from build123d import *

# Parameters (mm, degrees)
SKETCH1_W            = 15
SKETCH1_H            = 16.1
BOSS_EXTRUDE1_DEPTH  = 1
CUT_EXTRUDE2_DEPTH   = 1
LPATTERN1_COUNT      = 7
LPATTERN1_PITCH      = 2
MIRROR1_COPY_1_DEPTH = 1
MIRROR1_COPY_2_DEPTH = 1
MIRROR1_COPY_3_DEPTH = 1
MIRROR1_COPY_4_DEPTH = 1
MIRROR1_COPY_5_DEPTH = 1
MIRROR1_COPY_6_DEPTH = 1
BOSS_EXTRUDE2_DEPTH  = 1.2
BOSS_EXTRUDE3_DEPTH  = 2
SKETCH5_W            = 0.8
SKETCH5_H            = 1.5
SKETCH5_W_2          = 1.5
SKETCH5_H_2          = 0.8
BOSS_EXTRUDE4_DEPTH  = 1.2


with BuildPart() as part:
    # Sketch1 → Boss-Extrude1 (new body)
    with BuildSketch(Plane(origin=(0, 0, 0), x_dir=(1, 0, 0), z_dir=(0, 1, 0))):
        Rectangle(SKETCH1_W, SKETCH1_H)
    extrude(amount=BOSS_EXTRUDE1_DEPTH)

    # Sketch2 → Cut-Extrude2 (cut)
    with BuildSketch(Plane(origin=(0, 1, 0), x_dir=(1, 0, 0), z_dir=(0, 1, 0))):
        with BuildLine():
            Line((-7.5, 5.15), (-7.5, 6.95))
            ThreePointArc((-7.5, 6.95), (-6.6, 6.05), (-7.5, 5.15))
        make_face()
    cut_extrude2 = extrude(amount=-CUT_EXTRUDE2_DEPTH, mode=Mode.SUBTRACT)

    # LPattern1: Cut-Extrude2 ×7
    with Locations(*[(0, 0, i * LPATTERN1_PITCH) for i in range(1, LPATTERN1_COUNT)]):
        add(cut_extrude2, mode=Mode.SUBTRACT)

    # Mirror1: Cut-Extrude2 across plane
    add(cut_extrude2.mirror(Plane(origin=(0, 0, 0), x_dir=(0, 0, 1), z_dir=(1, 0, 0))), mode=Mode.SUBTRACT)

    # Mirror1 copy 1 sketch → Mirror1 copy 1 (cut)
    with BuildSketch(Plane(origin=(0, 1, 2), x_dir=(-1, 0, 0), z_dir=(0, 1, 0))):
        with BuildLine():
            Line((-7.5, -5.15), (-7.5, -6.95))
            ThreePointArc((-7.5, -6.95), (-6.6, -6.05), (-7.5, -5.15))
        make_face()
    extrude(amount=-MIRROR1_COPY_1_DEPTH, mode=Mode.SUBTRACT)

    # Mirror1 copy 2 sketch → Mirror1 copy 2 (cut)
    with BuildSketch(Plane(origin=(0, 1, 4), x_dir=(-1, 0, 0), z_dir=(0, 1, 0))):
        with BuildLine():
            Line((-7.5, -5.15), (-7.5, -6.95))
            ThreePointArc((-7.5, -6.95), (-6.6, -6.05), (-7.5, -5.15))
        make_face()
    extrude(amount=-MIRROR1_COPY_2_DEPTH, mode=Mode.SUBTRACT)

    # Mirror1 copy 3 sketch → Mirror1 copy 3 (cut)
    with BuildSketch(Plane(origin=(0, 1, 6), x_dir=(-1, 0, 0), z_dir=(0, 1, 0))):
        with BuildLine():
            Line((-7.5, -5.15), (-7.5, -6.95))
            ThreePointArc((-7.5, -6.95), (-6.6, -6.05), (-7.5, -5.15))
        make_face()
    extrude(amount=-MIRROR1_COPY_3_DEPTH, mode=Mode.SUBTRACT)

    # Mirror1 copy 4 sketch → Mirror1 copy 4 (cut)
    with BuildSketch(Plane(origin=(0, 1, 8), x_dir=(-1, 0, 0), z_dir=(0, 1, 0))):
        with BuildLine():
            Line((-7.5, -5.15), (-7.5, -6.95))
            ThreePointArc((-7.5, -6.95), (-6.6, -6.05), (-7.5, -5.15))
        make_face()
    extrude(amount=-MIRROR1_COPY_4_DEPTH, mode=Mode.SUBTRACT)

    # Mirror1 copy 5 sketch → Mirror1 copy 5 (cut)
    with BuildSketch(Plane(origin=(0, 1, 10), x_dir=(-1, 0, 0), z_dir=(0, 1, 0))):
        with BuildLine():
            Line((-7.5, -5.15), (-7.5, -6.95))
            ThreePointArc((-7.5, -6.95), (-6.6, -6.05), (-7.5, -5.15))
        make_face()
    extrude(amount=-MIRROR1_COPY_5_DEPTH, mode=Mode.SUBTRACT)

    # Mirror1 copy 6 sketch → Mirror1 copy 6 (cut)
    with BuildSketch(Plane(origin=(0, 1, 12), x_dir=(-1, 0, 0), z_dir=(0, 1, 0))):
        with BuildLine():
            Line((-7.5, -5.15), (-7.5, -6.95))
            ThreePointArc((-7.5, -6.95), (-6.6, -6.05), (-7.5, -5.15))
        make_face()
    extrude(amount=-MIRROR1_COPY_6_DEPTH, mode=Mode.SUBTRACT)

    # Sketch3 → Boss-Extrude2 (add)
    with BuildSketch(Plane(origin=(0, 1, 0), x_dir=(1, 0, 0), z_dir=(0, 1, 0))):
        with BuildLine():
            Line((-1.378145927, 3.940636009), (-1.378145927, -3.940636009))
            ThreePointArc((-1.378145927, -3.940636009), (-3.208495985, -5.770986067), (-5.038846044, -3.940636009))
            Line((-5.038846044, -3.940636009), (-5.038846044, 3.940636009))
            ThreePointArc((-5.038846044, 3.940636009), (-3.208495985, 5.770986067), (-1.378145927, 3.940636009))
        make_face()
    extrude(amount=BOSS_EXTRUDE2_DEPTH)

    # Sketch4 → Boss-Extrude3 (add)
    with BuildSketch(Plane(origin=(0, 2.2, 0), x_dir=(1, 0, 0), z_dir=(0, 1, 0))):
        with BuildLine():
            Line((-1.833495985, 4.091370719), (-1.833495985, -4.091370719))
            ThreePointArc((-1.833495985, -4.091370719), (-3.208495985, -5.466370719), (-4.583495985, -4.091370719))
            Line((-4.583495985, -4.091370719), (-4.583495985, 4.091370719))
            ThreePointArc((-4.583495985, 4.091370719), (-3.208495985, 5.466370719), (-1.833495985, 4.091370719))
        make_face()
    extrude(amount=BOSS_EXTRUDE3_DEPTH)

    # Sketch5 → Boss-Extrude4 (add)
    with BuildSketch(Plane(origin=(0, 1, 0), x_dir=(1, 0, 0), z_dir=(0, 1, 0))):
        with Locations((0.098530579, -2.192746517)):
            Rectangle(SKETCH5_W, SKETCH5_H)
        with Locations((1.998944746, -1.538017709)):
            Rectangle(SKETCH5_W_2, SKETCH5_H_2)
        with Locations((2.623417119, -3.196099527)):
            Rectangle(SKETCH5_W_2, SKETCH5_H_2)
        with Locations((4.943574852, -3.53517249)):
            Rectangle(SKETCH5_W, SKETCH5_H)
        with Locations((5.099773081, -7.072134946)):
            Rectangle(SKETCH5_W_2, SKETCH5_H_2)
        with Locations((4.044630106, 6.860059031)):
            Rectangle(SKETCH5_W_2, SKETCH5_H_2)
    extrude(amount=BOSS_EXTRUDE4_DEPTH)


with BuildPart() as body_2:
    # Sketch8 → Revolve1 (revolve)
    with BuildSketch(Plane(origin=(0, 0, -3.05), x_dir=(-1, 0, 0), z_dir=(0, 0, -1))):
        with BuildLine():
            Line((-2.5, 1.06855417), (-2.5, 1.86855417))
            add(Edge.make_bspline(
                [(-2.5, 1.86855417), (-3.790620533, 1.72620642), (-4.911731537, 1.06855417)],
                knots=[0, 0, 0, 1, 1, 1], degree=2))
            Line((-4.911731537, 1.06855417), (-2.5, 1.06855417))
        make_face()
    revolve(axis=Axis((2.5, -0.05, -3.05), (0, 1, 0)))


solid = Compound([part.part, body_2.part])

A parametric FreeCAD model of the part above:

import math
import FreeCAD as App
import Part
import Sketcher

doc = App.newDocument("Part")
body = doc.addObject("PartDesign::Body", "Body")

# Sketch on XZ plane
sketch1 = body.newObject("Sketcher::SketchObject", "Sketch")
sketch1.AttachmentSupport = (doc.getObject("XZ_Plane"), [""])
sketch1.MapMode = "FlatFace"
sketch1.addGeometry(Part.LineSegment(App.Vector(-8, -8, 0), App.Vector(-8, 8, 0)), False)
sketch1.addGeometry(Part.LineSegment(App.Vector(-8, 8, 0), App.Vector(8, 8, 0)), False)
sketch1.addGeometry(Part.LineSegment(App.Vector(8, 8, 0), App.Vector(8, -8, 0)), False)
sketch1.addGeometry(Part.LineSegment(App.Vector(8, -8, 0), App.Vector(-8, -8, 0)), False)
sketch1.addConstraint(Sketcher.Constraint("Coincident", 0, 2, 1, 1))
sketch1.addConstraint(Sketcher.Constraint("Coincident", 1, 2, 2, 1))
sketch1.addConstraint(Sketcher.Constraint("Coincident", 2, 2, 3, 1))
sketch1.addConstraint(Sketcher.Constraint("Coincident", 3, 2, 0, 1))
sketch1.addConstraint(Sketcher.Constraint("Vertical", 0))
sketch1.addConstraint(Sketcher.Constraint("Horizontal", 1))
sketch1.addConstraint(Sketcher.Constraint("Vertical", 2))
sketch1.addConstraint(Sketcher.Constraint("Horizontal", 3))
sketch1.addConstraint(Sketcher.Constraint("Symmetric", 0, 2, 2, 2, -1, 1))
sketch1.addConstraint(Sketcher.Constraint("DistanceX", 1, 1, 1, 2, 15.0))
sketch1.addConstraint(Sketcher.Constraint("DistanceY", 0, 1, 0, 2, 16.1))
pad1 = body.newObject("PartDesign::Pad", "Pad")
pad1.Profile = sketch1
pad1.Length = 1
pad1.Reversed = True

# Sketch on XZ plane
sketch2 = body.newObject("Sketcher::SketchObject", "Sketch001")
sketch2.AttachmentSupport = (doc.getObject("XZ_Plane"), [""])
sketch2.MapMode = "FlatFace"
sketch2.AttachmentOffset = App.Placement(App.Vector(0, 0, -1), App.Rotation())
sketch2.addGeometry(Part.LineSegment(App.Vector(-7.5, -7, 0), App.Vector(-7.5, -5.2, 0)), False)
sketch2.addGeometry(Part.ArcOfCircle(Part.Circle(App.Vector(-7.5, -6, 0), App.Vector(0, 0, 1), 0.9), math.radians(-90), math.radians(90)), False)
sketch2.addConstraint(Sketcher.Constraint("Coincident", 0, 1, 1, 1))
sketch2.addConstraint(Sketcher.Constraint("Coincident", 1, 2, 0, 2))
sketch2.addConstraint(Sketcher.Constraint("Vertical", 0))
sketch2.addConstraint(Sketcher.Constraint("Vertical", 1, 3, 0, 1))
sketch2.addConstraint(Sketcher.Constraint("Radius", 1, 0.9))
sketch2.addConstraint(Sketcher.Constraint("DistanceX", 1, 3, -1, 1, 7.5))
sketch2.addConstraint(Sketcher.Constraint("DistanceY", 1, 3, -1, 1, 6.05))
pocket1 = body.newObject("PartDesign::Pocket", "Pocket")
pocket1.Profile = sketch2
pocket1.Length = 1
pocket1.Reversed = True
doc.recompute()

linearpattern = body.newObject("PartDesign::LinearPattern", "LinearPattern")
linearpattern.Originals = [pocket1]
linearpattern.Direction = (doc.getObject("Z_Axis"), [""])
linearpattern.Mode = "offset"
linearpattern.Offset = 2
linearpattern.Occurrences = 7
body.Tip = linearpattern
doc.recompute()

mirrored = body.newObject("PartDesign::Mirrored", "Mirrored")
mirrored.Originals = [pocket1]
mirrored.MirrorPlane = (doc.getObject("YZ_Plane"), [""])
body.Tip = mirrored

# Sketch on XZ plane
sketch3 = body.newObject("Sketcher::SketchObject", "Sketch002")
sketch3.AttachmentSupport = (doc.getObject("XZ_Plane"), [""])
sketch3.MapMode = "FlatFace"
sketch3.AttachmentOffset = App.Placement(App.Vector(0, 0, -1), App.Rotation())
sketch3.addGeometry(Part.LineSegment(App.Vector(7.5, -3.1, 0), App.Vector(7.5, -5, 0)), False)
sketch3.addGeometry(Part.ArcOfCircle(Part.Circle(App.Vector(7.5, -4, 0), App.Vector(0, 0, 1), 0.9), math.radians(90), math.radians(270)), False)
sketch3.addConstraint(Sketcher.Constraint("Coincident", 0, 1, 1, 1))
sketch3.addConstraint(Sketcher.Constraint("Coincident", 1, 2, 0, 2))
sketch3.addConstraint(Sketcher.Constraint("Vertical", 0))
sketch3.addConstraint(Sketcher.Constraint("Vertical", 1, 3, 0, 1))
sketch3.addConstraint(Sketcher.Constraint("Radius", 1, 0.9))
sketch3.addConstraint(Sketcher.Constraint("DistanceX", -1, 1, 1, 3, 7.5))
sketch3.addConstraint(Sketcher.Constraint("DistanceY", 1, 3, -1, 1, 4.05))
pocket2 = body.newObject("PartDesign::Pocket", "Pocket001")
pocket2.Profile = sketch3
pocket2.Length = 1
pocket2.Reversed = True

# Sketch on XZ plane
sketch4 = body.newObject("Sketcher::SketchObject", "Sketch003")
sketch4.AttachmentSupport = (doc.getObject("XZ_Plane"), [""])
sketch4.MapMode = "FlatFace"
sketch4.AttachmentOffset = App.Placement(App.Vector(0, 0, -1), App.Rotation())
sketch4.addGeometry(Part.LineSegment(App.Vector(7.5, -1.1, 0), App.Vector(7.5, -3, 0)), False)
sketch4.addGeometry(Part.ArcOfCircle(Part.Circle(App.Vector(7.5, -2, 0), App.Vector(0, 0, 1), 0.9), math.radians(90), math.radians(270)), False)
sketch4.addConstraint(Sketcher.Constraint("Coincident", 0, 1, 1, 1))
sketch4.addConstraint(Sketcher.Constraint("Coincident", 1, 2, 0, 2))
sketch4.addConstraint(Sketcher.Constraint("Vertical", 0))
sketch4.addConstraint(Sketcher.Constraint("Vertical", 1, 3, 0, 1))
sketch4.addConstraint(Sketcher.Constraint("Radius", 1, 0.9))
sketch4.addConstraint(Sketcher.Constraint("DistanceX", -1, 1, 1, 3, 7.5))
sketch4.addConstraint(Sketcher.Constraint("DistanceY", 1, 3, -1, 1, 2.05))
pocket3 = body.newObject("PartDesign::Pocket", "Pocket002")
pocket3.Profile = sketch4
pocket3.Length = 1
pocket3.Reversed = True

# Sketch on XZ plane
sketch5 = body.newObject("Sketcher::SketchObject", "Sketch004")
sketch5.AttachmentSupport = (doc.getObject("XZ_Plane"), [""])
sketch5.MapMode = "FlatFace"
sketch5.AttachmentOffset = App.Placement(App.Vector(0, 0, -1), App.Rotation())
sketch5.addGeometry(Part.LineSegment(App.Vector(7.5, 0.8, 0), App.Vector(7.5, -0.9, 0)), False)
sketch5.addGeometry(Part.ArcOfCircle(Part.Circle(App.Vector(7.5, -0.1, 0), App.Vector(0, 0, 1), 0.9), math.radians(90), math.radians(270)), False)
sketch5.addConstraint(Sketcher.Constraint("Coincident", 0, 1, 1, 1))
sketch5.addConstraint(Sketcher.Constraint("Coincident", 1, 2, 0, 2))
sketch5.addConstraint(Sketcher.Constraint("Vertical", 0))
sketch5.addConstraint(Sketcher.Constraint("Vertical", 1, 3, 0, 1))
sketch5.addConstraint(Sketcher.Constraint("Radius", 1, 0.9))
sketch5.addConstraint(Sketcher.Constraint("DistanceX", -1, 1, 1, 3, 7.5))
sketch5.addConstraint(Sketcher.Constraint("DistanceY", 1, 3, -1, 1, 0.05))
pocket4 = body.newObject("PartDesign::Pocket", "Pocket003")
pocket4.Profile = sketch5
pocket4.Length = 1
pocket4.Reversed = True

# Sketch on XZ plane
sketch6 = body.newObject("Sketcher::SketchObject", "Sketch005")
sketch6.AttachmentSupport = (doc.getObject("XZ_Plane"), [""])
sketch6.MapMode = "FlatFace"
sketch6.AttachmentOffset = App.Placement(App.Vector(0, 0, -1), App.Rotation())
sketch6.addGeometry(Part.LineSegment(App.Vector(7.5, 2.9, 0), App.Vector(7.5, 1.1, 0)), False)
sketch6.addGeometry(Part.ArcOfCircle(Part.Circle(App.Vector(7.5, 1.9, 0), App.Vector(0, 0, 1), 0.9), math.radians(90), math.radians(270)), False)
sketch6.addConstraint(Sketcher.Constraint("Coincident", 0, 1, 1, 1))
sketch6.addConstraint(Sketcher.Constraint("Coincident", 1, 2, 0, 2))
sketch6.addConstraint(Sketcher.Constraint("Vertical", 0))
sketch6.addConstraint(Sketcher.Constraint("Vertical", 1, 3, 0, 1))
sketch6.addConstraint(Sketcher.Constraint("Radius", 1, 0.9))
sketch6.addConstraint(Sketcher.Constraint("DistanceX", -1, 1, 1, 3, 7.5))
sketch6.addConstraint(Sketcher.Constraint("DistanceY", -1, 1, 1, 3, 1.95))
pocket5 = body.newObject("PartDesign::Pocket", "Pocket004")
pocket5.Profile = sketch6
pocket5.Length = 1
pocket5.Reversed = True

# Sketch on XZ plane
sketch7 = body.newObject("Sketcher::SketchObject", "Sketch006")
sketch7.AttachmentSupport = (doc.getObject("XZ_Plane"), [""])
sketch7.MapMode = "FlatFace"
sketch7.AttachmentOffset = App.Placement(App.Vector(0, 0, -1), App.Rotation())
sketch7.addGeometry(Part.LineSegment(App.Vector(7.5, 4.8, 0), App.Vector(7.5, 3, 0)), False)
sketch7.addGeometry(Part.ArcOfCircle(Part.Circle(App.Vector(7.5, 4, 0), App.Vector(0, 0, 1), 0.9), math.radians(90), math.radians(270)), False)
sketch7.addConstraint(Sketcher.Constraint("Coincident", 0, 1, 1, 1))
sketch7.addConstraint(Sketcher.Constraint("Coincident", 1, 2, 0, 2))
sketch7.addConstraint(Sketcher.Constraint("Vertical", 0))
sketch7.addConstraint(Sketcher.Constraint("Vertical", 1, 3, 0, 1))
sketch7.addConstraint(Sketcher.Constraint("Radius", 1, 0.9))
sketch7.addConstraint(Sketcher.Constraint("DistanceX", -1, 1, 1, 3, 7.5))
sketch7.addConstraint(Sketcher.Constraint("DistanceY", -1, 1, 1, 3, 3.95))
pocket6 = body.newObject("PartDesign::Pocket", "Pocket005")
pocket6.Profile = sketch7
pocket6.Length = 1
pocket6.Reversed = True

# Sketch on XZ plane
sketch8 = body.newObject("Sketcher::SketchObject", "Sketch007")
sketch8.AttachmentSupport = (doc.getObject("XZ_Plane"), [""])
sketch8.MapMode = "FlatFace"
sketch8.AttachmentOffset = App.Placement(App.Vector(0, 0, -1), App.Rotation())
sketch8.addGeometry(Part.LineSegment(App.Vector(7.5, 6.8, 0), App.Vector(7.5, 5, 0)), False)
sketch8.addGeometry(Part.ArcOfCircle(Part.Circle(App.Vector(7.5, 6, 0), App.Vector(0, 0, 1), 0.9), math.radians(90), math.radians(270)), False)
sketch8.addConstraint(Sketcher.Constraint("Coincident", 0, 1, 1, 1))
sketch8.addConstraint(Sketcher.Constraint("Coincident", 1, 2, 0, 2))
sketch8.addConstraint(Sketcher.Constraint("Vertical", 0))
sketch8.addConstraint(Sketcher.Constraint("Vertical", 1, 3, 0, 1))
sketch8.addConstraint(Sketcher.Constraint("Radius", 1, 0.9))
sketch8.addConstraint(Sketcher.Constraint("DistanceX", -1, 1, 1, 3, 7.5))
sketch8.addConstraint(Sketcher.Constraint("DistanceY", -1, 1, 1, 3, 5.95))
pocket7 = body.newObject("PartDesign::Pocket", "Pocket006")
pocket7.Profile = sketch8
pocket7.Length = 1
pocket7.Reversed = True

# Sketch on XZ plane
sketch9 = body.newObject("Sketcher::SketchObject", "Sketch008")
sketch9.AttachmentSupport = (doc.getObject("XZ_Plane"), [""])
sketch9.MapMode = "FlatFace"
sketch9.AttachmentOffset = App.Placement(App.Vector(0, 0, -1), App.Rotation())
sketch9.addGeometry(Part.LineSegment(App.Vector(-1.4, 3.9, 0), App.Vector(-1.4, -3.9, 0)), False)
sketch9.addGeometry(Part.ArcOfCircle(Part.Circle(App.Vector(-3.2, -3.9, 0), App.Vector(0, 0, 1), 1.8), math.radians(180), math.radians(360)), False)
sketch9.addGeometry(Part.LineSegment(App.Vector(-5, -3.9, 0), App.Vector(-5, 3.9, 0)), False)
sketch9.addGeometry(Part.ArcOfCircle(Part.Circle(App.Vector(-3.2, 3.9, 0), App.Vector(0, 0, 1), 1.8), math.radians(0), math.radians(180)), False)
sketch9.addConstraint(Sketcher.Constraint("Tangent", 0, 2, 1, 2))
sketch9.addConstraint(Sketcher.Constraint("Tangent", 1, 1, 2, 1))
sketch9.addConstraint(Sketcher.Constraint("Tangent", 2, 2, 3, 2))
sketch9.addConstraint(Sketcher.Constraint("Tangent", 3, 1, 0, 1))
sketch9.addConstraint(Sketcher.Constraint("Vertical", 0))
sketch9.addConstraint(Sketcher.Constraint("Vertical", 2))
sketch9.addConstraint(Sketcher.Constraint("Radius", 1, 1.83035))
sketch9.addConstraint(Sketcher.Constraint("DistanceY", 0, 2, 0, 1, 7.881272))
sketch9.addConstraint(Sketcher.Constraint("DistanceX", 1, 3, -1, 1, 3.208496))
sketch9.addConstraint(Sketcher.Constraint("DistanceY", 1, 3, -1, 1, 3.940636))
pad2 = body.newObject("PartDesign::Pad", "Pad001")
pad2.Profile = sketch9
pad2.Length = 1.2
pad2.Reversed = True

# Sketch on XZ plane
sketch10 = body.newObject("Sketcher::SketchObject", "Sketch009")
sketch10.AttachmentSupport = (doc.getObject("XZ_Plane"), [""])
sketch10.MapMode = "FlatFace"
sketch10.AttachmentOffset = App.Placement(App.Vector(0, 0, -2.2), App.Rotation())
sketch10.addGeometry(Part.LineSegment(App.Vector(-1.8, 4.1, 0), App.Vector(-1.8, -4.1, 0)), False)
sketch10.addGeometry(Part.ArcOfCircle(Part.Circle(App.Vector(-3.2, -4.1, 0), App.Vector(0, 0, 1), 1.4), math.radians(180), math.radians(360)), False)
sketch10.addGeometry(Part.LineSegment(App.Vector(-4.6, -4.1, 0), App.Vector(-4.6, 4.1, 0)), False)
sketch10.addGeometry(Part.ArcOfCircle(Part.Circle(App.Vector(-3.2, 4.1, 0), App.Vector(0, 0, 1), 1.4), math.radians(0), math.radians(180)), False)
sketch10.addConstraint(Sketcher.Constraint("Tangent", 0, 2, 1, 2))
sketch10.addConstraint(Sketcher.Constraint("Tangent", 1, 1, 2, 1))
sketch10.addConstraint(Sketcher.Constraint("Tangent", 2, 2, 3, 2))
sketch10.addConstraint(Sketcher.Constraint("Tangent", 3, 1, 0, 1))
sketch10.addConstraint(Sketcher.Constraint("Vertical", 0))
sketch10.addConstraint(Sketcher.Constraint("Vertical", 2))
sketch10.addConstraint(Sketcher.Constraint("Radius", 1, 1.375))
sketch10.addConstraint(Sketcher.Constraint("DistanceY", 0, 2, 0, 1, 8.182741))
sketch10.addConstraint(Sketcher.Constraint("DistanceY", 1, 3, -1, 1, 4.091371))
sketch10.addConstraint(Sketcher.Constraint("DistanceX", 1, 3, -1, 1, 3.208496))
pad3 = body.newObject("PartDesign::Pad", "Pad002")
pad3.Profile = sketch10
pad3.Length = 2
pad3.Reversed = True

# Sketch on XZ plane
sketch11 = body.newObject("Sketcher::SketchObject", "Sketch010")
sketch11.AttachmentSupport = (doc.getObject("XZ_Plane"), [""])
sketch11.MapMode = "FlatFace"
sketch11.AttachmentOffset = App.Placement(App.Vector(0, 0, -1), App.Rotation())
sketch11.addGeometry(Part.LineSegment(App.Vector(-0.3, 1.4, 0), App.Vector(-0.3, 2.9, 0)), False)
sketch11.addGeometry(Part.LineSegment(App.Vector(-0.3, 2.9, 0), App.Vector(0.5, 2.9, 0)), False)
sketch11.addGeometry(Part.LineSegment(App.Vector(0.5, 2.9, 0), App.Vector(0.5, 1.4, 0)), False)
sketch11.addGeometry(Part.LineSegment(App.Vector(0.5, 1.4, 0), App.Vector(-0.3, 1.4, 0)), False)
sketch11.addGeometry(Part.LineSegment(App.Vector(1.2, 1.1, 0), App.Vector(1.2, 1.9, 0)), False)
sketch11.addGeometry(Part.LineSegment(App.Vector(1.2, 1.9, 0), App.Vector(2.7, 1.9, 0)), False)
sketch11.addGeometry(Part.LineSegment(App.Vector(2.7, 1.9, 0), App.Vector(2.7, 1.1, 0)), False)
sketch11.addGeometry(Part.LineSegment(App.Vector(2.7, 1.1, 0), App.Vector(1.2, 1.1, 0)), False)
sketch11.addGeometry(Part.LineSegment(App.Vector(1.9, 2.8, 0), App.Vector(1.9, 3.6, 0)), False)
sketch11.addGeometry(Part.LineSegment(App.Vector(1.9, 3.6, 0), App.Vector(3.4, 3.6, 0)), False)
sketch11.addGeometry(Part.LineSegment(App.Vector(3.4, 3.6, 0), App.Vector(3.4, 2.8, 0)), False)
sketch11.addGeometry(Part.LineSegment(App.Vector(3.4, 2.8, 0), App.Vector(1.9, 2.8, 0)), False)
sketch11.addGeometry(Part.LineSegment(App.Vector(4.5, 2.8, 0), App.Vector(4.5, 4.3, 0)), False)
sketch11.addGeometry(Part.LineSegment(App.Vector(4.5, 4.3, 0), App.Vector(5.3, 4.3, 0)), False)
sketch11.addGeometry(Part.LineSegment(App.Vector(5.3, 4.3, 0), App.Vector(5.3, 2.8, 0)), False)
sketch11.addGeometry(Part.LineSegment(App.Vector(5.3, 2.8, 0), App.Vector(4.5, 2.8, 0)), False)
sketch11.addGeometry(Part.LineSegment(App.Vector(4.3, 6.7, 0), App.Vector(4.3, 7.5, 0)), False)
sketch11.addGeometry(Part.LineSegment(App.Vector(4.3, 7.5, 0), App.Vector(5.8, 7.5, 0)), False)
sketch11.addGeometry(Part.LineSegment(App.Vector(5.8, 7.5, 0), App.Vector(5.8, 6.7, 0)), False)
sketch11.addGeometry(Part.LineSegment(App.Vector(5.8, 6.7, 0), App.Vector(4.3, 6.7, 0)), False)
sketch11.addGeometry(Part.LineSegment(App.Vector(3.3, -7.3, 0), App.Vector(3.3, -6.5, 0)), False)
sketch11.addGeometry(Part.LineSegment(App.Vector(3.3, -6.5, 0), App.Vector(4.8, -6.5, 0)), False)
sketch11.addGeometry(Part.LineSegment(App.Vector(4.8, -6.5, 0), App.Vector(4.8, -7.3, 0)), False)
sketch11.addGeometry(Part.LineSegment(App.Vector(4.8, -7.3, 0), App.Vector(3.3, -7.3, 0)), False)
sketch11.addConstraint(Sketcher.Constraint("Coincident", 0, 2, 1, 1))
sketch11.addConstraint(Sketcher.Constraint("Coincident", 1, 2, 2, 1))
sketch11.addConstraint(Sketcher.Constraint("Coincident", 2, 2, 3, 1))
sketch11.addConstraint(Sketcher.Constraint("Coincident", 3, 2, 0, 1))
sketch11.addConstraint(Sketcher.Constraint("Coincident", 4, 2, 5, 1))
sketch11.addConstraint(Sketcher.Constraint("Coincident", 5, 2, 6, 1))
sketch11.addConstraint(Sketcher.Constraint("Coincident", 6, 2, 7, 1))
sketch11.addConstraint(Sketcher.Constraint("Coincident", 7, 2, 4, 1))
sketch11.addConstraint(Sketcher.Constraint("Coincident", 8, 2, 9, 1))
sketch11.addConstraint(Sketcher.Constraint("Coincident", 9, 2, 10, 1))
sketch11.addConstraint(Sketcher.Constraint("Coincident", 10, 2, 11, 1))
sketch11.addConstraint(Sketcher.Constraint("Coincident", 11, 2, 8, 1))
sketch11.addConstraint(Sketcher.Constraint("Coincident", 12, 2, 13, 1))
sketch11.addConstraint(Sketcher.Constraint("Coincident", 13, 2, 14, 1))
sketch11.addConstraint(Sketcher.Constraint("Coincident", 14, 2, 15, 1))
sketch11.addConstraint(Sketcher.Constraint("Coincident", 15, 2, 12, 1))
sketch11.addConstraint(Sketcher.Constraint("Coincident", 16, 2, 17, 1))
sketch11.addConstraint(Sketcher.Constraint("Coincident", 17, 2, 18, 1))
sketch11.addConstraint(Sketcher.Constraint("Coincident", 18, 2, 19, 1))
sketch11.addConstraint(Sketcher.Constraint("Coincident", 19, 2, 16, 1))
sketch11.addConstraint(Sketcher.Constraint("Coincident", 20, 2, 21, 1))
sketch11.addConstraint(Sketcher.Constraint("Coincident", 21, 2, 22, 1))
sketch11.addConstraint(Sketcher.Constraint("Coincident", 22, 2, 23, 1))
sketch11.addConstraint(Sketcher.Constraint("Coincident", 23, 2, 20, 1))
sketch11.addConstraint(Sketcher.Constraint("Vertical", 0))
sketch11.addConstraint(Sketcher.Constraint("Horizontal", 1))
sketch11.addConstraint(Sketcher.Constraint("Vertical", 2))
sketch11.addConstraint(Sketcher.Constraint("Horizontal", 3))
sketch11.addConstraint(Sketcher.Constraint("Vertical", 4))
sketch11.addConstraint(Sketcher.Constraint("Horizontal", 5))
sketch11.addConstraint(Sketcher.Constraint("Vertical", 6))
sketch11.addConstraint(Sketcher.Constraint("Horizontal", 7))
sketch11.addConstraint(Sketcher.Constraint("Vertical", 8))
sketch11.addConstraint(Sketcher.Constraint("Horizontal", 9))
sketch11.addConstraint(Sketcher.Constraint("Vertical", 10))
sketch11.addConstraint(Sketcher.Constraint("Horizontal", 11))
sketch11.addConstraint(Sketcher.Constraint("Vertical", 12))
sketch11.addConstraint(Sketcher.Constraint("Horizontal", 13))
sketch11.addConstraint(Sketcher.Constraint("Vertical", 14))
sketch11.addConstraint(Sketcher.Constraint("Horizontal", 15))
sketch11.addConstraint(Sketcher.Constraint("Vertical", 16))
sketch11.addConstraint(Sketcher.Constraint("Horizontal", 17))
sketch11.addConstraint(Sketcher.Constraint("Vertical", 18))
sketch11.addConstraint(Sketcher.Constraint("Horizontal", 19))
sketch11.addConstraint(Sketcher.Constraint("Vertical", 20))
sketch11.addConstraint(Sketcher.Constraint("Horizontal", 21))
sketch11.addConstraint(Sketcher.Constraint("Vertical", 22))
sketch11.addConstraint(Sketcher.Constraint("Horizontal", 23))
sketch11.addConstraint(Sketcher.Constraint("Equal", 7, 9))
sketch11.addConstraint(Sketcher.Constraint("Equal", 3, 13))
sketch11.addConstraint(Sketcher.Constraint("Equal", 11, 17))
sketch11.addConstraint(Sketcher.Constraint("Equal", 19, 21))
sketch11.addConstraint(Sketcher.Constraint("Equal", 23, 0))
sketch11.addConstraint(Sketcher.Constraint("Equal", 15, 4))
sketch11.addConstraint(Sketcher.Constraint("Equal", 6, 8))
sketch11.addConstraint(Sketcher.Constraint("Equal", 2, 12))
sketch11.addConstraint(Sketcher.Constraint("Equal", 10, 16))
sketch11.addConstraint(Sketcher.Constraint("Equal", 18, 20))
sketch11.addConstraint(Sketcher.Constraint("DistanceX", 1, 1, 1, 2, 0.8))
sketch11.addConstraint(Sketcher.Constraint("DistanceX", 5, 1, 5, 2, 1.5))
sketch11.addConstraint(Sketcher.Constraint("DistanceY", -1, 1, 8, 2, 3.5961))
sketch11.addConstraint(Sketcher.Constraint("DistanceX", 16, 2, 12, 2, 0.193802))
sketch11.addConstraint(Sketcher.Constraint("DistanceX", 2, 2, 20, 2, 2.7961))
sketch11.addConstraint(Sketcher.Constraint("DistanceX", 0, 2, -1, 1, 0.301469))
sketch11.addConstraint(Sketcher.Constraint("DistanceY", 20, 2, -1, 1, 6.460059))
sketch11.addConstraint(Sketcher.Constraint("DistanceY", 2, 2, 4, 2, 0.495271))
sketch11.addConstraint(Sketcher.Constraint("DistanceY", 4, 2, 8, 2, 1.658082))
sketch11.addConstraint(Sketcher.Constraint("DistanceX", 5, 2, 12, 2, 1.79463))
sketch11.addConstraint(Sketcher.Constraint("DistanceX", -1, 1, 4, 2, 1.248945))
sketch11.addConstraint(Sketcher.Constraint("DistanceX", -1, 1, 8, 2, 1.873417))
sketch11.addConstraint(Sketcher.Constraint("DistanceY", -1, 1, 12, 2, 4.285172))
sketch11.addConstraint(Sketcher.Constraint("DistanceY", -1, 1, 16, 2, 7.472135))
pad4 = body.newObject("PartDesign::Pad", "Pad003")
pad4.Profile = sketch11
pad4.Length = 1.2
pad4.Reversed = True
body2 = doc.addObject("PartDesign::Body", "Body001")

# Sketch on XY plane
sketch12 = body2.newObject("Sketcher::SketchObject", "Sketch011")
sketch12.AttachmentSupport = (doc.getObject("XY_Plane001"), [""])
sketch12.MapMode = "FlatFace"
sketch12.AttachmentOffset = App.Placement(App.Vector(0, 0, -3.05), App.Rotation())
sketch12.addGeometry(Part.LineSegment(App.Vector(2.5, 1.068554, 0), App.Vector(2.5, 1.868554, 0)), False)
sketch12.addGeometry(Part.BSplineCurve([App.Vector(2.5, 1.868554, 0), App.Vector(3.790621, 1.726206, 0), App.Vector(4.911732, 1.068554, 0)], [3, 3], [0, 1], False, 2, [1, 1, 1], False), False)
sketch12.addGeometry(Part.LineSegment(App.Vector(4.911732, 1.068554, 0), App.Vector(2.5, 1.068554, 0)), False)
sketch12.addGeometry(Part.LineSegment(App.Vector(2.5, 1.068554, 0), App.Vector(2.5, 1.868554, 0)), True)  # axis
sketch12.addConstraint(Sketcher.Constraint("Block", 1))
sketch12.addConstraint(Sketcher.Constraint("Coincident", 0, 2, 1, 1))
sketch12.addConstraint(Sketcher.Constraint("Coincident", 1, 2, 2, 1))
sketch12.addConstraint(Sketcher.Constraint("Coincident", 2, 2, 0, 1))
sketch12.addConstraint(Sketcher.Constraint("Vertical", 0))
sketch12.addConstraint(Sketcher.Constraint("Horizontal", 2))
sketch12.addConstraint(Sketcher.Constraint("Vertical", 3))
sketch12.addConstraint(Sketcher.Constraint("Coincident", 3, 1, 2, 2))
sketch12.addConstraint(Sketcher.Constraint("Equal", 0, 3))
revolution = body2.newObject("PartDesign::Revolution", "Revolution")
revolution.Profile = sketch12
revolution.ReferenceAxis = (sketch12, ["Axis0"])
revolution.Angle = 360

doc.recompute()
